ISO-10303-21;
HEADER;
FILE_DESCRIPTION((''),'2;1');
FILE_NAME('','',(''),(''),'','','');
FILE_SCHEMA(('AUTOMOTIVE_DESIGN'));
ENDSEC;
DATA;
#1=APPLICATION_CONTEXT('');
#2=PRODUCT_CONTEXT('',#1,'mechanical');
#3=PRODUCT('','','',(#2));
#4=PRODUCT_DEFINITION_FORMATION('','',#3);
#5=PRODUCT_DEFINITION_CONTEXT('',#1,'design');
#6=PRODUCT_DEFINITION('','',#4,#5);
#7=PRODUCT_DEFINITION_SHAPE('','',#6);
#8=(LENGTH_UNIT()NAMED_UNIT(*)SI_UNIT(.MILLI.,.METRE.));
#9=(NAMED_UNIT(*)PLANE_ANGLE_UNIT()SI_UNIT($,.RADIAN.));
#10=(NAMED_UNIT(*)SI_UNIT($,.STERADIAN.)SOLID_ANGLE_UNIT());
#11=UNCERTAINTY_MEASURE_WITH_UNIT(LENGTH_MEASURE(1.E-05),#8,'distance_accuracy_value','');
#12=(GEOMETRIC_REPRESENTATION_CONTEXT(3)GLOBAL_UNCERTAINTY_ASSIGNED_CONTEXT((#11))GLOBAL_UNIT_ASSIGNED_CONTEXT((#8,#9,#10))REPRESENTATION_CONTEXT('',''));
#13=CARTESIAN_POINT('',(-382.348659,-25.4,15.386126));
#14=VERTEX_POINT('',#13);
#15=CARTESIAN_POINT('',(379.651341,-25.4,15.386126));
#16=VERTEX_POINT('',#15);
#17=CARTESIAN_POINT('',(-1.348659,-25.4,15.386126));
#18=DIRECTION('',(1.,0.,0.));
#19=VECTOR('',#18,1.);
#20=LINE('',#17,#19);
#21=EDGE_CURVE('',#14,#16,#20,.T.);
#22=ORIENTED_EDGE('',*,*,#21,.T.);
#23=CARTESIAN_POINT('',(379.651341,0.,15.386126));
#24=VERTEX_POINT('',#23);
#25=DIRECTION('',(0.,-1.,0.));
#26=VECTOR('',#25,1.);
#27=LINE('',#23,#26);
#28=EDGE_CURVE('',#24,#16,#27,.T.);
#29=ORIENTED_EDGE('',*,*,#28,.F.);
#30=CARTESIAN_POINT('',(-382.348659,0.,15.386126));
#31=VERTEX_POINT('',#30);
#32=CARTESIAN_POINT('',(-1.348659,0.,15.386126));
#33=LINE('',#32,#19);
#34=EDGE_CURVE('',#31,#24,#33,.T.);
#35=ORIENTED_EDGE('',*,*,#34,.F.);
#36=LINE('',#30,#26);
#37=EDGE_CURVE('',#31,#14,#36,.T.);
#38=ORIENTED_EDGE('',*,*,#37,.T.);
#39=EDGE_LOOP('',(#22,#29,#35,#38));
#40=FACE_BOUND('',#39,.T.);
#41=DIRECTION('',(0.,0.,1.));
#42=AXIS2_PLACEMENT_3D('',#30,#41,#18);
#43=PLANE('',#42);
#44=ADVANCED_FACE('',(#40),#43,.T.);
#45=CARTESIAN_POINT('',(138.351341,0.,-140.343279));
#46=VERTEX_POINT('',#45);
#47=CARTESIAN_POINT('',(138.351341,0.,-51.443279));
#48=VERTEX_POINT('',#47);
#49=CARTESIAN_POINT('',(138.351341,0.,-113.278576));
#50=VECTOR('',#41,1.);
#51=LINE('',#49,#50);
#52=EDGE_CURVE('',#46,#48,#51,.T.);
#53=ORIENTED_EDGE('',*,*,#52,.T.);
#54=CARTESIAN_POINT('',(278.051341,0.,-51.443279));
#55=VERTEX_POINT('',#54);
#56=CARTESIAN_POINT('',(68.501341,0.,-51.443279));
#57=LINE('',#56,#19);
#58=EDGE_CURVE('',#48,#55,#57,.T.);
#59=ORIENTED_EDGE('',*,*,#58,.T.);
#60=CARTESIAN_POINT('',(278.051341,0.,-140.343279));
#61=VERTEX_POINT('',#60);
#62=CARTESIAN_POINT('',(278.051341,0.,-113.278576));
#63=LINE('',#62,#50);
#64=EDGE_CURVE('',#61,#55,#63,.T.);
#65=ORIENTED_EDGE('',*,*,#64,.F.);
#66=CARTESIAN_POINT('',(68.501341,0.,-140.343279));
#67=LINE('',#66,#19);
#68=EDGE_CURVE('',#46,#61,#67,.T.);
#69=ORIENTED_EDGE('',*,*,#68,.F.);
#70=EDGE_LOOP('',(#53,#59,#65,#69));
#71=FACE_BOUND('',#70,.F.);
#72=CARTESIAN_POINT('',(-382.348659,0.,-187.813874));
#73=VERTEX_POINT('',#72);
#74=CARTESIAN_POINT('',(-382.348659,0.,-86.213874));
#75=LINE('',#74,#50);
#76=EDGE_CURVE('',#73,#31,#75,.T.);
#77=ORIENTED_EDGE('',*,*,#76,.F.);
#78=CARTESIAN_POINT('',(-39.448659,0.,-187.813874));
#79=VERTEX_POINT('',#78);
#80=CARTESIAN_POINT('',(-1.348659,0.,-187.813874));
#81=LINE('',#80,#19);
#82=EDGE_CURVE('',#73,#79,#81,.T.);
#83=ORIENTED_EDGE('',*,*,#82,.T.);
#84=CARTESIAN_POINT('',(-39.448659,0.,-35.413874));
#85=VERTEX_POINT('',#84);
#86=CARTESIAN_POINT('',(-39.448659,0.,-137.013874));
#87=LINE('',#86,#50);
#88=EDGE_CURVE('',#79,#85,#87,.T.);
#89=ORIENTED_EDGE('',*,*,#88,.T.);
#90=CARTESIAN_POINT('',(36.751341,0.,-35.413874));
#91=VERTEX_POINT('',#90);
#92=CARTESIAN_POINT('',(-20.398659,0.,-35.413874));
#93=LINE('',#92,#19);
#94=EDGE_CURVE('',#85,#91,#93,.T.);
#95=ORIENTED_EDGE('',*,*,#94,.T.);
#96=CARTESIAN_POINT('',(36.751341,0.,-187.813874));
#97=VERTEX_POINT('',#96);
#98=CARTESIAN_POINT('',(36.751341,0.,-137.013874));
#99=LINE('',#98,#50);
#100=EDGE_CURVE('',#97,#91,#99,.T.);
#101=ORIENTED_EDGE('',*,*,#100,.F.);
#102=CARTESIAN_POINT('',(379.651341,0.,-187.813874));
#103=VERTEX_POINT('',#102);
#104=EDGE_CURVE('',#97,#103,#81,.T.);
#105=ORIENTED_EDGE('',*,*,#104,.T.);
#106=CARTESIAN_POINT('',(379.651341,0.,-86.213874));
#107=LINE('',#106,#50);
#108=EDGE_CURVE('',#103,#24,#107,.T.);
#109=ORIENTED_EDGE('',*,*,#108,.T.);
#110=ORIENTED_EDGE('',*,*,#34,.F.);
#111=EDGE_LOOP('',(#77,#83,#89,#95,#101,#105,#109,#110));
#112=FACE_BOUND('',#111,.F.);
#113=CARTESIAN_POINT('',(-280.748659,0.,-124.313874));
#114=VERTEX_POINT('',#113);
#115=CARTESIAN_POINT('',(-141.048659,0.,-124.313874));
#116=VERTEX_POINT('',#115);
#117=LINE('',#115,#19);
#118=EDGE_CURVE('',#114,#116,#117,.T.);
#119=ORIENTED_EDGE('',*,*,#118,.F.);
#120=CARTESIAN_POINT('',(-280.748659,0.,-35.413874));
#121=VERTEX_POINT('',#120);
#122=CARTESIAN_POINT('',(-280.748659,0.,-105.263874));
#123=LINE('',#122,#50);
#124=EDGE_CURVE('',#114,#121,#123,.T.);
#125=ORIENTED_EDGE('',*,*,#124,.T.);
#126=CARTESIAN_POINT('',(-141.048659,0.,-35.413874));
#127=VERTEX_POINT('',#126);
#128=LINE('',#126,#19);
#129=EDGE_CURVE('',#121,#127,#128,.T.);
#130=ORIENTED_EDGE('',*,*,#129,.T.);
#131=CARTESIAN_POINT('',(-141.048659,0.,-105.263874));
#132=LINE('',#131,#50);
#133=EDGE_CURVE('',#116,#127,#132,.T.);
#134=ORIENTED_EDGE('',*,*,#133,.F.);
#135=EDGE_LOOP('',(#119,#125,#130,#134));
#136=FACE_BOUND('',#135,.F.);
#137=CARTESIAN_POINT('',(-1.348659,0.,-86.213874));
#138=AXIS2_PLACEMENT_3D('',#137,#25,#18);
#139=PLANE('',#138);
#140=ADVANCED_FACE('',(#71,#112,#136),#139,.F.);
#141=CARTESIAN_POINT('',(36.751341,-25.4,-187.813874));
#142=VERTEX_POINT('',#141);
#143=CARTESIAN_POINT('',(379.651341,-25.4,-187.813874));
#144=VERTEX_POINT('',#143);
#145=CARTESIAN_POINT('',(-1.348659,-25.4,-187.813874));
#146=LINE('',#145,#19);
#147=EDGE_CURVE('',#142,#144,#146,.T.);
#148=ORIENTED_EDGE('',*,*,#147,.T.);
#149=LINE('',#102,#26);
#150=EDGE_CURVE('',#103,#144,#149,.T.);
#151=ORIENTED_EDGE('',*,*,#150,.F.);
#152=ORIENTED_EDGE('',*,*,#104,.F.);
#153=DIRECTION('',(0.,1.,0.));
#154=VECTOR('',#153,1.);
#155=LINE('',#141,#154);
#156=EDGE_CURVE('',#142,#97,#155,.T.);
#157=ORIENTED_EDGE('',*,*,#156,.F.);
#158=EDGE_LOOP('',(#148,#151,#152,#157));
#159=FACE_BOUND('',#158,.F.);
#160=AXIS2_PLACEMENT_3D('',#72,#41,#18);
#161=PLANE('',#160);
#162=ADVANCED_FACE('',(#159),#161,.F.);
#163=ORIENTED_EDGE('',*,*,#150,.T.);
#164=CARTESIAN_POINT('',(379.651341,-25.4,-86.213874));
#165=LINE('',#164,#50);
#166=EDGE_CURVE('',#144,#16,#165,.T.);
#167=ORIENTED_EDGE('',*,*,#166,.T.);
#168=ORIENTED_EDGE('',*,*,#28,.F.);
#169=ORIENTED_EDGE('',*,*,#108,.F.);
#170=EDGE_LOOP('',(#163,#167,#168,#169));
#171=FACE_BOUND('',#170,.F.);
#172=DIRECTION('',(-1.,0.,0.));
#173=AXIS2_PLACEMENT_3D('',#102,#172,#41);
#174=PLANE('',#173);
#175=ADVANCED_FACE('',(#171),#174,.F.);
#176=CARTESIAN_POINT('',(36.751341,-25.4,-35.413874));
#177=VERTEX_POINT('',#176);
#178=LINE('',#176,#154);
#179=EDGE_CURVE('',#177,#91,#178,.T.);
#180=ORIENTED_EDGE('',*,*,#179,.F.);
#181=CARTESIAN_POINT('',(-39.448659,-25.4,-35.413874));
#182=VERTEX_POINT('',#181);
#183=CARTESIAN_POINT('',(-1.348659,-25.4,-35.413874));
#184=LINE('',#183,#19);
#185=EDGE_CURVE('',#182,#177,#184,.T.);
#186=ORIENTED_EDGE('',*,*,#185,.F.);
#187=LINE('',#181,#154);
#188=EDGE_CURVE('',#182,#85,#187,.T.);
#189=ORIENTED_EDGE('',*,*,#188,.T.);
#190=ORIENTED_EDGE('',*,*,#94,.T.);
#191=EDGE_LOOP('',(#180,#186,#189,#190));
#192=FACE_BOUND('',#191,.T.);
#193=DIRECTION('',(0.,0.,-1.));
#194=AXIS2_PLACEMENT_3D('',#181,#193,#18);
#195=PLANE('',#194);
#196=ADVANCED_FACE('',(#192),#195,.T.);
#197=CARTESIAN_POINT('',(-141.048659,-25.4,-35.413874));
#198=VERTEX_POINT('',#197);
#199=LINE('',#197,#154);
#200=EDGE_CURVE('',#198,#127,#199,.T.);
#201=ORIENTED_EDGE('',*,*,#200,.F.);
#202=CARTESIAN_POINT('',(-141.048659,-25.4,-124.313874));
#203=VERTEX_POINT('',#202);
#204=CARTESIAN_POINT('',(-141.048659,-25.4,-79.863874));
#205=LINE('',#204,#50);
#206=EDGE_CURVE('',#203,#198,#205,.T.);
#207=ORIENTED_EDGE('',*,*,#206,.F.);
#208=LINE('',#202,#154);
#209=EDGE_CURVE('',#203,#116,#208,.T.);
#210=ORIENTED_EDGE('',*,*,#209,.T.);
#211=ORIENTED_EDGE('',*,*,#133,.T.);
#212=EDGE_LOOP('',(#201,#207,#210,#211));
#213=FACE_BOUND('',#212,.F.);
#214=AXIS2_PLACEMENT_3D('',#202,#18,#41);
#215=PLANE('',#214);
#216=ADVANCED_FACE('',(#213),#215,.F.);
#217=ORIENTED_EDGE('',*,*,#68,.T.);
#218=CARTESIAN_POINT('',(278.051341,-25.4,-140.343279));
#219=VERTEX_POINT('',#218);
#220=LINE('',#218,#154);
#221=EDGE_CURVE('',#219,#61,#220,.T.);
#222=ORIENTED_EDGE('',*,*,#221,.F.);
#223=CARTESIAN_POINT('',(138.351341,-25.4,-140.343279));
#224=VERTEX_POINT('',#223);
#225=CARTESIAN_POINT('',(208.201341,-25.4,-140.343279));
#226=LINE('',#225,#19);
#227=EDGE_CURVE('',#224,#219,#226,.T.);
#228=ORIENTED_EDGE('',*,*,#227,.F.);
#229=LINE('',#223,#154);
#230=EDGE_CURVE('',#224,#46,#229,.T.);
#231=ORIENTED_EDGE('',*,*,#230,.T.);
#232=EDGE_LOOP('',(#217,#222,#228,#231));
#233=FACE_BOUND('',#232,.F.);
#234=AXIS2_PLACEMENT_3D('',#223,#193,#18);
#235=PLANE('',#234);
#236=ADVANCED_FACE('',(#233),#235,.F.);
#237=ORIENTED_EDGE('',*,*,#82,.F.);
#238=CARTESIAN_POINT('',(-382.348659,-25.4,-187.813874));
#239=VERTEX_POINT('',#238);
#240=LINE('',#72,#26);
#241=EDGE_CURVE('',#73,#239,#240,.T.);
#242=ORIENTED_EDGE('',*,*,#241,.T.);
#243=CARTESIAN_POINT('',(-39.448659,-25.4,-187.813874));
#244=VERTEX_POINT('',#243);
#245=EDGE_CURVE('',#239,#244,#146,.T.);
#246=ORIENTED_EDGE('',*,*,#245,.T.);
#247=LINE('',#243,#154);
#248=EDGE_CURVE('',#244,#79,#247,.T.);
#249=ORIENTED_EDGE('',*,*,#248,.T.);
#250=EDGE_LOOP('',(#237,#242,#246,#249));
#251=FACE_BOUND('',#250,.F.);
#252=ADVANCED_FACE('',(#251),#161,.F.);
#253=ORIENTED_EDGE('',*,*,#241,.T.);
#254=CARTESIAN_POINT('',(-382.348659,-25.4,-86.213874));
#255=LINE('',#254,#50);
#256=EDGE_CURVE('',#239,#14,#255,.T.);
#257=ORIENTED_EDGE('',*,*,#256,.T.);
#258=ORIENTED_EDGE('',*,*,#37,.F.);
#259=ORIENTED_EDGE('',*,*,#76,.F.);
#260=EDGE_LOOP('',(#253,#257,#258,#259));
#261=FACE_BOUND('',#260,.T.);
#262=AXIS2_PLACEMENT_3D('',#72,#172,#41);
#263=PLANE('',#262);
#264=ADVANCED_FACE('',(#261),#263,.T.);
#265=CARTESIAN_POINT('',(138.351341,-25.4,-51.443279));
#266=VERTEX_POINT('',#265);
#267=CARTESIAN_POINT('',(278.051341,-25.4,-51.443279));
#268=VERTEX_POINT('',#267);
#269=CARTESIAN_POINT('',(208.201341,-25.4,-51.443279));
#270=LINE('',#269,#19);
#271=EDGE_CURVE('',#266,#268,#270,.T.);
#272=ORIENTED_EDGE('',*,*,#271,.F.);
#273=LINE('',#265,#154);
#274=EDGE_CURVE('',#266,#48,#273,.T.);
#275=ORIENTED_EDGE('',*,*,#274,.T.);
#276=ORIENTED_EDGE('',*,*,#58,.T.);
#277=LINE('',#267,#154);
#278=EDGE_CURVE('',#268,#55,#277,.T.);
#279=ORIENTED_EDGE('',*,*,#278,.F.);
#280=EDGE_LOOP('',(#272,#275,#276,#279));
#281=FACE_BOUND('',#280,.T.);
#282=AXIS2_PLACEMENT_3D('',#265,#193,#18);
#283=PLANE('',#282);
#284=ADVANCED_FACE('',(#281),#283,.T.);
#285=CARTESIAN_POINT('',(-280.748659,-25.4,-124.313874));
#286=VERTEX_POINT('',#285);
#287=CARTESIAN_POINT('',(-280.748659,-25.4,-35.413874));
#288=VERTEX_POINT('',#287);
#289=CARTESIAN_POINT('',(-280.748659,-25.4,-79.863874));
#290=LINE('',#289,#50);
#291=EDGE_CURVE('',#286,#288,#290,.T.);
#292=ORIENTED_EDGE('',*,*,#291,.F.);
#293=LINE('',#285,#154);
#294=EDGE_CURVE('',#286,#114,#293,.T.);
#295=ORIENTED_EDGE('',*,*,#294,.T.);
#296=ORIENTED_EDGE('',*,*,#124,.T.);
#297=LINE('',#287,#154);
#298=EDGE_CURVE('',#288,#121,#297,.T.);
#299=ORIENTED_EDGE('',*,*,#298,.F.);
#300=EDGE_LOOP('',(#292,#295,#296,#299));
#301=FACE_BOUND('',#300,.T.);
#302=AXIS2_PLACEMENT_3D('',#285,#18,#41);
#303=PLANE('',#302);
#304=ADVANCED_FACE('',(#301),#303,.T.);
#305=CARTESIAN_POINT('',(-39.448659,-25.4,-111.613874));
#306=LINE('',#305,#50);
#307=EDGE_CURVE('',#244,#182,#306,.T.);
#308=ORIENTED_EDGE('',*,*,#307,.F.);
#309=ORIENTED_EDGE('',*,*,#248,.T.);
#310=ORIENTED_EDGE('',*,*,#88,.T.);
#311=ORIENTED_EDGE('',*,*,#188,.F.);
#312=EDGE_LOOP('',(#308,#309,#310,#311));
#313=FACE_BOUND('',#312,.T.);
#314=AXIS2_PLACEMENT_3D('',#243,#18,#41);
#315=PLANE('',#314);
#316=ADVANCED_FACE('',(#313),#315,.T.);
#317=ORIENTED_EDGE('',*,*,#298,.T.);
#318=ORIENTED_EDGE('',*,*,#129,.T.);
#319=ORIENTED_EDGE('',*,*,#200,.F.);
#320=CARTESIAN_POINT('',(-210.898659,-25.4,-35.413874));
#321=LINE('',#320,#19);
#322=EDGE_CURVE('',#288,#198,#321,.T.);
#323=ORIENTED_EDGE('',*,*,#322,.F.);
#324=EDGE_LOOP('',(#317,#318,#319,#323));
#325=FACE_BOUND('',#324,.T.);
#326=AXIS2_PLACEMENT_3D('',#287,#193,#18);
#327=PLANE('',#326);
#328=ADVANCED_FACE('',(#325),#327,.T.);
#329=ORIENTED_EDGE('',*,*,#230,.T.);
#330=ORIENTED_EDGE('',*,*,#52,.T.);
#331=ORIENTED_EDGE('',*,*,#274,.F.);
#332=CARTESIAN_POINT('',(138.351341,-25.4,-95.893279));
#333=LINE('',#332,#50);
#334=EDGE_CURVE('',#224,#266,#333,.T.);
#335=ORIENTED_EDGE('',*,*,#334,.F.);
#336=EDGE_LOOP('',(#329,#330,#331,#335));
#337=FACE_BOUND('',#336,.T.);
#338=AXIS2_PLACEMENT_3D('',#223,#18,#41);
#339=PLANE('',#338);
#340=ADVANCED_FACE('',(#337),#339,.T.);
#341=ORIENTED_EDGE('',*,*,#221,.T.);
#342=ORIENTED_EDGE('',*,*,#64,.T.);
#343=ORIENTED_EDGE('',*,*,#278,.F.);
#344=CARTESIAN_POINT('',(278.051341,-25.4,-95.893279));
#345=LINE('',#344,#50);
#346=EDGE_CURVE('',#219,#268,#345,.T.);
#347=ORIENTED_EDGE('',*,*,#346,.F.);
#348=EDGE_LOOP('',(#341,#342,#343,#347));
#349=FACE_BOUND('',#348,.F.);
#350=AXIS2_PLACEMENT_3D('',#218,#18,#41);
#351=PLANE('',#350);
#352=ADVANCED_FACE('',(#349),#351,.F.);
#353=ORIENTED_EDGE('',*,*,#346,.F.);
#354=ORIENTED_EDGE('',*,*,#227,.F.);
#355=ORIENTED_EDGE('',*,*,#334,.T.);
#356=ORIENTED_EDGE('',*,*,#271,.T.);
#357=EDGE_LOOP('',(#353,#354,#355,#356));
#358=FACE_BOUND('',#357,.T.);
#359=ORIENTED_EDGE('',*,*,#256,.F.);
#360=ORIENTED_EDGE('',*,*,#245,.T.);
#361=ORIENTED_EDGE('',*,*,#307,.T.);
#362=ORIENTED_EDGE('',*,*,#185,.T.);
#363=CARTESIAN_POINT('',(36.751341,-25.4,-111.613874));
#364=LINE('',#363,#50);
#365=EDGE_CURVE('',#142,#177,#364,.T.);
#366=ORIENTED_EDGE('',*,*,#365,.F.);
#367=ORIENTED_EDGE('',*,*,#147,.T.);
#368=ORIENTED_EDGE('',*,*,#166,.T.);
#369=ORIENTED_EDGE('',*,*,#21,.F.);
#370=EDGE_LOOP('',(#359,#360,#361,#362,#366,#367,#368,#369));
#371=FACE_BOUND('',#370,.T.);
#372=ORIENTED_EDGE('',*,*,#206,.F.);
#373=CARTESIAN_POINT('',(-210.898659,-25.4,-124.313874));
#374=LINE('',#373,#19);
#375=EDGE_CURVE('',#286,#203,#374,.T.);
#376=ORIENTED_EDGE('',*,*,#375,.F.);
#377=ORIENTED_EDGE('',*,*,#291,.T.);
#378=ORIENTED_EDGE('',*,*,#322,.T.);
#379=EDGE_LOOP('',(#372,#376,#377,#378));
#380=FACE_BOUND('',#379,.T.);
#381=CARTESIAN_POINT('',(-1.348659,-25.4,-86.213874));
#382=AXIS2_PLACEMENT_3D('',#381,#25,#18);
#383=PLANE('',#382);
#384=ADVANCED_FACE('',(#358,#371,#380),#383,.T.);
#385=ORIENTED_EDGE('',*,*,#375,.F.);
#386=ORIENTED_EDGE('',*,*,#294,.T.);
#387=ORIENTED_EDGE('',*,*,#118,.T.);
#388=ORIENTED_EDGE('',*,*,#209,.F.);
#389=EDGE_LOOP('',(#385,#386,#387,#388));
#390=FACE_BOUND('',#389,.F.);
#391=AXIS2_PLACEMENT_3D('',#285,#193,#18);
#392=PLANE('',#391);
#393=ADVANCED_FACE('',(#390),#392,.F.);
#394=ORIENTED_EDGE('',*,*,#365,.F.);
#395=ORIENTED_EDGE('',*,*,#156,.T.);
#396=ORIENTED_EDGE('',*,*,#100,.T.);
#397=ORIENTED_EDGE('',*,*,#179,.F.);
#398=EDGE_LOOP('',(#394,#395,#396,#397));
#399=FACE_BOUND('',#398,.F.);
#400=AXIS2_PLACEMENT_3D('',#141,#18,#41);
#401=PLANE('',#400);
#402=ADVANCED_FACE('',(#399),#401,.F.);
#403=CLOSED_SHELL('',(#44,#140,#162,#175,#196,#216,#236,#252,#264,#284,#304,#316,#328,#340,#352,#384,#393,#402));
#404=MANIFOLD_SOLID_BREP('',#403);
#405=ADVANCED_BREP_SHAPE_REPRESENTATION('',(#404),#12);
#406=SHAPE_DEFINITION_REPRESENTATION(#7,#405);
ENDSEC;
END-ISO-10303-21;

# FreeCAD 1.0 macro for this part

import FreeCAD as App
import Part
import Sketcher
from FreeCAD import Vector
Q = App.Units.Quantity


def add_polygon(sketch, points):
    """Adds a closed chain of lines whose ends are joined by coincident constraints."""
    first, n = sketch.GeometryCount, len(points)
    for a, b in zip(points, points[1:] + points[:1]):
        sketch.addGeometry(Part.LineSegment(App.Vector(*a, 0), App.Vector(*b, 0)), False)
    for i in range(n):
        sketch.addConstraint(Sketcher.Constraint("Coincident", first + i, 2, first + (i + 1) % n, 1))

doc = App.newDocument("Part")
body = doc.addObject("PartDesign::Body", "Body")

sketch1 = body.newObject("Sketcher::SketchObject", "Sketch")
sketch1.AttachmentSupport = (doc.getObject("XZ_Plane"), [""])
sketch1.MapMode = "FlatFace"
add_polygon(sketch1, [(-382, 15), (-382, -188), (380, -188), (380, 15)])
sketch1.addConstraint(Sketcher.Constraint("Vertical", 0))
sketch1.addConstraint(Sketcher.Constraint("Horizontal", 1))
sketch1.addConstraint(Sketcher.Constraint("Vertical", 2))
sketch1.addConstraint(Sketcher.Constraint("Horizontal", 3))
sketch1.addConstraint(Sketcher.Constraint("DistanceX", 1, 1, 1, 2, Q("30 in")))
sketch1.addConstraint(Sketcher.Constraint("DistanceY", 0, 2, 0, 1, Q("8 in")))
sketch1.addConstraint(Sketcher.Constraint("DistanceX", 0, 2, -1, 1, Q("382.348659 mm")))
sketch1.addConstraint(Sketcher.Constraint("DistanceY", 0, 2, -1, 1, Q("187.813874 mm")))
pad1 = body.newObject("PartDesign::Pad", "Pad")
pad1.Profile = sketch1
pad1.Length = Q("1 in")

sketch2 = body.newObject("Sketcher::SketchObject", "Sketch001")
sketch2.AttachmentSupport = (doc.getObject("XZ_Plane"), [""])
sketch2.MapMode = "FlatFace"
sketch2.AttachmentOffset = App.Placement(Vector(0, 0, 1 * 25.4), App.Rotation())
add_polygon(sketch2, [(-281, -35), (-281, -124), (-141, -124), (-141, -35)])
sketch2.addConstraint(Sketcher.Constraint("Vertical", 0))
sketch2.addConstraint(Sketcher.Constraint("Horizontal", 1))
sketch2.addConstraint(Sketcher.Constraint("Vertical", 2))
sketch2.addConstraint(Sketcher.Constraint("Horizontal", 3))
sketch2.addConstraint(Sketcher.Constraint("DistanceX", 1, 1, 1, 2, Q("5.5 in")))
sketch2.addConstraint(Sketcher.Constraint("DistanceY", 0, 2, 0, 1, Q("3.5 in")))
sketch2.addConstraint(Sketcher.Constraint("DistanceX", 0, 2, -1, 1, Q("280.748659 mm")))
sketch2.addConstraint(Sketcher.Constraint("DistanceY", 0, 2, -1, 1, Q("124.313874 mm")))
pocket1 = body.newObject("PartDesign::Pocket", "Pocket")
pocket1.Profile = sketch2
pocket1.Length = Q("2 in")

sketch3 = body.newObject("Sketcher::SketchObject", "Sketch002")
sketch3.AttachmentSupport = (doc.getObject("XZ_Plane"), [""])
sketch3.MapMode = "FlatFace"
sketch3.AttachmentOffset = App.Placement(Vector(0, 0, 1 * 25.4), App.Rotation())
add_polygon(sketch3, [(-39, -35), (-39, -188), (37, -188), (37, -35)])
sketch3.addConstraint(Sketcher.Constraint("Vertical", 0))
sketch3.addConstraint(Sketcher.Constraint("Horizontal", 1))
sketch3.addConstraint(Sketcher.Constraint("Vertical", 2))
sketch3.addConstraint(Sketcher.Constraint("Horizontal", 3))
sketch3.addConstraint(Sketcher.Constraint("DistanceX", 1, 1, 1, 2, Q("3 in")))
sketch3.addConstraint(Sketcher.Constraint("DistanceY", 0, 2, 0, 1, Q("6 in")))
sketch3.addConstraint(Sketcher.Constraint("DistanceX", 0, 2, -1, 1, Q("39.448659 mm")))
sketch3.addConstraint(Sketcher.Constraint("DistanceY", 0, 2, -1, 1, Q("187.813874 mm")))
pocket2 = body.newObject("PartDesign::Pocket", "Pocket001")
pocket2.Profile = sketch3
pocket2.Length = Q("2 in")

sketch4 = body.newObject("Sketcher::SketchObject", "Sketch003")
sketch4.AttachmentSupport = (doc.getObject("XZ_Plane"), [""])
sketch4.MapMode = "FlatFace"
sketch4.AttachmentOffset = App.Placement(Vector(0, 0, 1 * 25.4), App.Rotation())
add_polygon(sketch4, [(138, -51), (138, -140), (278, -140), (278, -51)])
sketch4.addConstraint(Sketcher.Constraint("Vertical", 0))
sketch4.addConstraint(Sketcher.Constraint("Horizontal", 1))
sketch4.addConstraint(Sketcher.Constraint("Vertical", 2))
sketch4.addConstraint(Sketcher.Constraint("Horizontal", 3))
sketch4.addConstraint(Sketcher.Constraint("DistanceX", 1, 1, 1, 2, Q("5.5 in")))
sketch4.addConstraint(Sketcher.Constraint("DistanceY", 0, 2, 0, 1, Q("3.5 in")))
sketch4.addConstraint(Sketcher.Constraint("DistanceX", -1, 1, 0, 2, Q("138.351341 mm")))
sketch4.addConstraint(Sketcher.Constraint("DistanceY", 0, 2, -1, 1, Q("140.343279 mm")))
pocket3 = body.newObject("PartDesign::Pocket", "Pocket002")
pocket3.Profile = sketch4
pocket3.Length = Q("2 in")

doc.recompute()
